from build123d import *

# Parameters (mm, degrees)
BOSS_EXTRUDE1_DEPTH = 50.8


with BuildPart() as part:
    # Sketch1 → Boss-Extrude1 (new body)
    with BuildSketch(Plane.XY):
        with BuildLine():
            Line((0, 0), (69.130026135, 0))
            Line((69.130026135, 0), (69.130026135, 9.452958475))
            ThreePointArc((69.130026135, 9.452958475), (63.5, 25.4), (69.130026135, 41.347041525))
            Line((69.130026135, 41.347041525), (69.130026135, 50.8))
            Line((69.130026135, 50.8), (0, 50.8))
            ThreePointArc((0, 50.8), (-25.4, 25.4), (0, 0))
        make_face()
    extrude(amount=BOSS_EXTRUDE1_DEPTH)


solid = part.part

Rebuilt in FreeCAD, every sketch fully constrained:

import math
import FreeCAD as App
import Part
import Sketcher
Q = App.Units.Quantity

doc = App.newDocument("Part")
body = doc.addObject("PartDesign::Body", "Body")

# Sketch on XY plane
sketch1 = body.newObject("Sketcher::SketchObject", "Sketch")
sketch1.AttachmentSupport = (doc.getObject("XY_Plane"), [""])
sketch1.MapMode = "FlatFace"
sketch1.addGeometry([
    Part.LineSegment(App.Vector(0, 0, 0), App.Vector(69, 0, 0)),  # 0
    Part.LineSegment(App.Vector(69, 0, 0), App.Vector(69, 9, 0)),  # 1
    Part.ArcOfCircle(Part.Circle(App.Vector(89, 25, 0), App.Vector(0, 0, 1), 25), math.radians(141), math.radians(219)),  # 2
    Part.LineSegment(App.Vector(69, 41, 0), App.Vector(69, 51, 0)),  # 3
    Part.LineSegment(App.Vector(69, 51, 0), App.Vector(0, 51, 0)),  # 4
    Part.ArcOfCircle(Part.Circle(App.Vector(0, 25, 0), App.Vector(0, 0, 1), 25), math.radians(90), math.radians(270)),  # 5
], False)
sketch1.addConstraint([
    Sketcher.Constraint("Coincident", 0, 2, 1, 1),
    Sketcher.Constraint("Coincident", 1, 2, 2, 2),
    Sketcher.Constraint("Coincident", 2, 1, 3, 1),
    Sketcher.Constraint("Coincident", 3, 2, 4, 1),
    Sketcher.Constraint("Tangent", 4, 2, 5, 1),
    Sketcher.Constraint("Tangent", 5, 2, 0, 1),
    Sketcher.Constraint("Horizontal", 0),
    Sketcher.Constraint("Vertical", 1),
    Sketcher.Constraint("Vertical", 3),
    Sketcher.Constraint("Horizontal", 4),
    Sketcher.Constraint("Coincident", 5, 2, -1, 1),
    Sketcher.Constraint("Equal", 2, 5),
    Sketcher.Constraint("Horizontal", 2, 3, 5, 3),
    Sketcher.Constraint("Vertical", 1, 2, 2, 1),
    Sketcher.Constraint("Radius", 2, Q("1 in")),
    Sketcher.Constraint("DistanceX", -1, 1, 2, 3, Q("3.5 in")),
    Sketcher.Constraint("DistanceY", 1, 1, 1, 2, 9.452958),
])
pad1 = body.newObject("PartDesign::Pad", "Pad")
pad1.Profile = sketch1
pad1.Length = Q("2 in")

doc.recompute()
